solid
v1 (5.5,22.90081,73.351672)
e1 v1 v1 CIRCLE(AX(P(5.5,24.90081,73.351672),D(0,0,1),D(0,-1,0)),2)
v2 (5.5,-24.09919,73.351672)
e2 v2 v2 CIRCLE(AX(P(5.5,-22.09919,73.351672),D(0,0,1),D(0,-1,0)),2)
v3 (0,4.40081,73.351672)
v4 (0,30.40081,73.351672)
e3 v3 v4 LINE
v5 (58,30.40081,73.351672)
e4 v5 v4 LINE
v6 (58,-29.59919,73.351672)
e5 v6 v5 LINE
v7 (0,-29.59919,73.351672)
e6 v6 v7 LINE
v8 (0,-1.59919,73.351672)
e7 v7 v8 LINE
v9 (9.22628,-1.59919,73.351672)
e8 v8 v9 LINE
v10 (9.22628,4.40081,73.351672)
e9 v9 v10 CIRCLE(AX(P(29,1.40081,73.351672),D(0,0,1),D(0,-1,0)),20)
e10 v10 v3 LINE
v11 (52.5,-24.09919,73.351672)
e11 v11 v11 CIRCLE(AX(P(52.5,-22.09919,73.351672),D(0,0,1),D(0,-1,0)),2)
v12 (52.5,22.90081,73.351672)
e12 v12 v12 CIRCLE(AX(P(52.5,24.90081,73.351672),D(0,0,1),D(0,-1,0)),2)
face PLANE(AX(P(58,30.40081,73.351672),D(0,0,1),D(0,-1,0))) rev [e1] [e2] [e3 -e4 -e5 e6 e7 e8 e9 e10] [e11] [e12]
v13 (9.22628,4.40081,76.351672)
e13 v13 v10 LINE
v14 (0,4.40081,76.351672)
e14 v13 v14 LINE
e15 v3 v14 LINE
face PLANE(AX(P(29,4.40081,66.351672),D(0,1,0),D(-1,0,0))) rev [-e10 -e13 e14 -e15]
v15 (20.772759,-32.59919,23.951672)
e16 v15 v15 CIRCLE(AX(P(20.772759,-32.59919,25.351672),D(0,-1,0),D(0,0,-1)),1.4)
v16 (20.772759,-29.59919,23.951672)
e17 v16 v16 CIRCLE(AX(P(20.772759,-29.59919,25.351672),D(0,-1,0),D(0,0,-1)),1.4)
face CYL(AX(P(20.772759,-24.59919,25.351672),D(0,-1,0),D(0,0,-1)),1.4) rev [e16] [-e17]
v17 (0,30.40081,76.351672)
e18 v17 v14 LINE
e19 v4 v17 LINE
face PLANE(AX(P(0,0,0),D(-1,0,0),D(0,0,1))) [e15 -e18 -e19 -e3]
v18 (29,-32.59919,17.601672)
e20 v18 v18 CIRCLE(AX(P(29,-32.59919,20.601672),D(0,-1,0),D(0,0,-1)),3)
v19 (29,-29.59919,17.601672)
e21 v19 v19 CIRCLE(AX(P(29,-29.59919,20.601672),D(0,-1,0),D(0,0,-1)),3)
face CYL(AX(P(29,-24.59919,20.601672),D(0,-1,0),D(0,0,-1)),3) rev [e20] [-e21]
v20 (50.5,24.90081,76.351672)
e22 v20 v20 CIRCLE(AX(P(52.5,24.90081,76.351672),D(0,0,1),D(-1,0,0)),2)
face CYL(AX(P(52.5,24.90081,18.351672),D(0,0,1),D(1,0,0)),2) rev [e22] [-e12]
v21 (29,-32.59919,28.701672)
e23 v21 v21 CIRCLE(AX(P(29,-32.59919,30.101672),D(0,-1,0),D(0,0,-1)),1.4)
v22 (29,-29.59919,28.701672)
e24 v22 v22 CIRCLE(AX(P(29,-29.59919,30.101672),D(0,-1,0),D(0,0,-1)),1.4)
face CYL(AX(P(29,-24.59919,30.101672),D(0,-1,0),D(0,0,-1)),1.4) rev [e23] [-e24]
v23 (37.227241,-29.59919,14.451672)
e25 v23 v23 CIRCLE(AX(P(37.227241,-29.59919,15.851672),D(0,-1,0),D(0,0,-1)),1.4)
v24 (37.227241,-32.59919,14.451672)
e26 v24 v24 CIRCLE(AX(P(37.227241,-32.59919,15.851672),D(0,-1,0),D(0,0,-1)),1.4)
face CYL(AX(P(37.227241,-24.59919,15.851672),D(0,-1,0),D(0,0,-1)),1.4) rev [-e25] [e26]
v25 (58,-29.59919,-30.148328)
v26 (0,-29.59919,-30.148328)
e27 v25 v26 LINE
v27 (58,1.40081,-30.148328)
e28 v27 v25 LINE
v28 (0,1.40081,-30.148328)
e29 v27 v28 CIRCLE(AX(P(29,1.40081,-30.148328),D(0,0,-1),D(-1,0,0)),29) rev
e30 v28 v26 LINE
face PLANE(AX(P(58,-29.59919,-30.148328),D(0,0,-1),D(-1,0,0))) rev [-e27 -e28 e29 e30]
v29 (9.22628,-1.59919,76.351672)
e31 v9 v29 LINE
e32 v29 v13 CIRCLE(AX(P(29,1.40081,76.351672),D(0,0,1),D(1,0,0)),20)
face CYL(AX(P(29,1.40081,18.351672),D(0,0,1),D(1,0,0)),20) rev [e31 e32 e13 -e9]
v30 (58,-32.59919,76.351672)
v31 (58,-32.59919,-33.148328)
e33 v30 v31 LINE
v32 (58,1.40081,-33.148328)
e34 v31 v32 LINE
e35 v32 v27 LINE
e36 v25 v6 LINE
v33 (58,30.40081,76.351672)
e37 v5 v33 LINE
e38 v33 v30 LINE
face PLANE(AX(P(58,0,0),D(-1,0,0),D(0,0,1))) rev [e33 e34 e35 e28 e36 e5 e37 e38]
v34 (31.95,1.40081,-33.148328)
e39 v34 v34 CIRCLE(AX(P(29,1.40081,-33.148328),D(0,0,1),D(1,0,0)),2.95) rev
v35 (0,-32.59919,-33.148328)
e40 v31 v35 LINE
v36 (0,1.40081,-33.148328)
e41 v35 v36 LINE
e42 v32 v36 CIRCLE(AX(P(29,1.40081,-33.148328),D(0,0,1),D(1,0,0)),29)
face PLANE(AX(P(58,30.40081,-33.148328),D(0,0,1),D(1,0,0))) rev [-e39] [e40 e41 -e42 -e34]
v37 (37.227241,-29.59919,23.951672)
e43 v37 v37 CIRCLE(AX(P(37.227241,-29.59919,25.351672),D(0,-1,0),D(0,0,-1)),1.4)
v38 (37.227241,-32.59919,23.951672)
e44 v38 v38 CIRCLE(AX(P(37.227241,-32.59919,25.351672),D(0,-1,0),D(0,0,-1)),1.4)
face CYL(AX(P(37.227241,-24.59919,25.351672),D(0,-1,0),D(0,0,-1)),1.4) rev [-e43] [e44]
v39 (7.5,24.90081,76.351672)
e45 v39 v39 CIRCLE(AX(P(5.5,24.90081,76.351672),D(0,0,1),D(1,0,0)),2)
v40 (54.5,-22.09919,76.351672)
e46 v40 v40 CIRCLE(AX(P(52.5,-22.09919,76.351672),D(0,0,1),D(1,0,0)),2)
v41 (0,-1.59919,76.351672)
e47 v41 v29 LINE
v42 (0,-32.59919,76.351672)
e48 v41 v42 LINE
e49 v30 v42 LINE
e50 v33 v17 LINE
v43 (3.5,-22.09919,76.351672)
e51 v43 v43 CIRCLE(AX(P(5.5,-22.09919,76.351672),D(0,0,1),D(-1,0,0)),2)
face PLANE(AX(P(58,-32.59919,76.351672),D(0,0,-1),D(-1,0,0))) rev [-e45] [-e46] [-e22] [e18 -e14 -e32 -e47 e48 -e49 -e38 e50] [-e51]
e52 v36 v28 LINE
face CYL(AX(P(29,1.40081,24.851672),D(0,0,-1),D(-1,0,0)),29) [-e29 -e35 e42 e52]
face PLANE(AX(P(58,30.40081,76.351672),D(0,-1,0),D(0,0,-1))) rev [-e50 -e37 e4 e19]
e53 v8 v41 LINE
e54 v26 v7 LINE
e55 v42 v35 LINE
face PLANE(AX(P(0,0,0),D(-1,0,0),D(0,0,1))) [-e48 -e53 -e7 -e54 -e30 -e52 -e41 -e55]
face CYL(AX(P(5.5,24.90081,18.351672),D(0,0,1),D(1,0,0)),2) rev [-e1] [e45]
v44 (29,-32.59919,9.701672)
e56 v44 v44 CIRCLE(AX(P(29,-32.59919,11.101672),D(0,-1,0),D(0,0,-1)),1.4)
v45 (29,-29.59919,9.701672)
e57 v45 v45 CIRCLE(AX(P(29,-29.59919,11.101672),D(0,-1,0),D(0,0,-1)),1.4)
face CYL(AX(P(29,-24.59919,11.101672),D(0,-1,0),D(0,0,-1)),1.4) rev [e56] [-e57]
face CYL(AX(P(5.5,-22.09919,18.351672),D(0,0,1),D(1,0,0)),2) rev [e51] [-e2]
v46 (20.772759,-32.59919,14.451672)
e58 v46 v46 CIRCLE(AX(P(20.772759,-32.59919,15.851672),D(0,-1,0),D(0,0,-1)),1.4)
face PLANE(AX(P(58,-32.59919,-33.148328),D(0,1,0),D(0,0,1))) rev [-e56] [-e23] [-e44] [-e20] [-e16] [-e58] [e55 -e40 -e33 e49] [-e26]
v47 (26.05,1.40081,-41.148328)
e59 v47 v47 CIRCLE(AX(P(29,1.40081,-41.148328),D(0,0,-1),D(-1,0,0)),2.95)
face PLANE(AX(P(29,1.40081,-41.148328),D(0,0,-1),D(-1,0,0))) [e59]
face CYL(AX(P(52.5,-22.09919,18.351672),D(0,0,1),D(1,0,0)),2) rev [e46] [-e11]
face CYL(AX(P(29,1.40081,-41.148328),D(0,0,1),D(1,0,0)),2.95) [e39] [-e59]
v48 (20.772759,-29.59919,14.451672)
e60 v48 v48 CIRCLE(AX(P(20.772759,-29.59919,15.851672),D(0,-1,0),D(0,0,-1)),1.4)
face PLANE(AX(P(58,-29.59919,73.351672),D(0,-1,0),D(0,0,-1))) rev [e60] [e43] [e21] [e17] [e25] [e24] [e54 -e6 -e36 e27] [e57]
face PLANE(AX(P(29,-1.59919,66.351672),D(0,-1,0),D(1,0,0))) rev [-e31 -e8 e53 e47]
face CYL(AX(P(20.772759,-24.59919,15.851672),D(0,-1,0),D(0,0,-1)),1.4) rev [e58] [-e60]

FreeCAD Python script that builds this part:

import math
import FreeCAD as App
import Part
import Sketcher
from FreeCAD import Vector


def add_polygon(sketch, points):
    """Adds a closed chain of lines whose ends are joined by coincident constraints."""
    first, n = sketch.GeometryCount, len(points)
    for a, b in zip(points, points[1:] + points[:1]):
        sketch.addGeometry(Part.LineSegment(App.Vector(*a, 0), App.Vector(*b, 0)), False)
    for i in range(n):
        sketch.addConstraint(Sketcher.Constraint("Coincident", first + i, 2, first + (i + 1) % n, 1))

doc = App.newDocument("Part")
body = doc.addObject("PartDesign::Body", "Body")

sketch1 = doc.addObject("Sketcher::SketchObject", "Sketch")
body.addObject(sketch1)
sketch1.AttachmentSupport = (doc.YZ_Plane, [""])
sketch1.MapMode = "FlatFace"
add_polygon(sketch1, [(-29.59919, 73.351672), (30.40081, 73.351672), (30.40081, 76.351672), (-32.59919, 76.351672), (-32.59919, -33.148328), (30.40081, -33.148328), (30.40081, -30.148328), (-29.59919, -30.148328)])
sketch1.addConstraint([
    Sketcher.Constraint("Horizontal", 0),
    Sketcher.Constraint("Vertical", 1),
    Sketcher.Constraint("Horizontal", 2),
    Sketcher.Constraint("Vertical", 3),
    Sketcher.Constraint("Horizontal", 4),
    Sketcher.Constraint("Vertical", 5),
    Sketcher.Constraint("Horizontal", 6),
    Sketcher.Constraint("Vertical", 7),
    Sketcher.Constraint("Vertical", 1, 2, 4, 2),
    Sketcher.Constraint("Equal", 1, 5),
    Sketcher.Constraint("DistanceX", 0, 1, 0, 2, 60.0),
    Sketcher.Constraint("DistanceX", 2, 2, 2, 1, 63.0),
    Sketcher.Constraint("DistanceY", 1, 1, 1, 2, 3.0),
    Sketcher.Constraint("DistanceY", 3, 2, 3, 1, 109.5),
    Sketcher.Constraint("DistanceX", -1, 1, 0, 2, 30.40081),
    Sketcher.Constraint("DistanceY", -1, 1, 0, 2, 73.351672),
])
pad1 = doc.addObject("PartDesign::Pad", "Pad")
body.addObject(pad1)
pad1.Profile = sketch1
pad1.Length = 58

sketch2 = doc.addObject("Sketcher::SketchObject", "Sketch001")
body.addObject(sketch2)
sketch2.AttachmentSupport = (doc.XY_Plane, [""])
sketch2.MapMode = "FlatFace"
sketch2.AttachmentOffset = App.Placement(Vector(0, 0, 76.351672), App.Rotation())
sketch2.addGeometry([
    Part.Circle(Vector(5.5, 24.90081, 0), Vector(0, 0, 1), 2),
    Part.Circle(Vector(52.5, 24.90081, 0), Vector(0, 0, 1), 2),
    Part.Circle(Vector(52.5, -22.09919, 0), Vector(0, 0, 1), 2),
    Part.Circle(Vector(5.5, -22.09919, 0), Vector(0, 0, 1), 2),
    Part.Circle(Vector(29, 1.40081, 0), Vector(0, 0, 1), 20),
], False)
sketch2.addConstraint([
    Sketcher.Constraint("Equal", 0, 1),
    Sketcher.Constraint("Equal", 1, 2),
    Sketcher.Constraint("Equal", 2, 3),
    Sketcher.Constraint("Horizontal", 0, 3, 1, 3),
    Sketcher.Constraint("Horizontal", 2, 3, 3, 3),
    Sketcher.Constraint("Vertical", 1, 3, 2, 3),
    Sketcher.Constraint("Vertical", 0, 3, 3, 3),
    Sketcher.Constraint("Diameter", 0, 4.0),
    Sketcher.Constraint("Diameter", 4, 40.0),
    Sketcher.Constraint("DistanceX", -1, 1, 4, 3, 29.0),
    Sketcher.Constraint("DistanceX", 0, 3, 1, 3, 47.0),
    Sketcher.Constraint("DistanceY", 2, 3, 1, 3, 47.0),
    Sketcher.Constraint("DistanceX", -1, 1, 0, 3, 5.5),
    Sketcher.Constraint("DistanceY", 4, 3, 0, 3, 23.5),
    Sketcher.Constraint("DistanceY", -1, 1, 0, 3, 24.90081),
])
pocket1 = doc.addObject("PartDesign::Pocket", "Pocket")
body.addObject(pocket1)
pocket1.Profile = sketch2
pocket1.Length = 58

sketch3 = doc.addObject("Sketcher::SketchObject", "Sketch002")
body.addObject(sketch3)
sketch3.AttachmentSupport = (doc.XY_Plane, [""])
sketch3.MapMode = "FlatFace"
sketch3.AttachmentOffset = App.Placement(Vector(0, 0, -33.148328), App.Rotation())
sketch3.addGeometry([
    Part.LineSegment(Vector(29, 30.40081, 0), Vector(58, 30.40081, 0)),
    Part.LineSegment(Vector(58, 30.40081, 0), Vector(58, 1.40081, 0)),
    Part.ArcOfCircle(Part.Circle(Vector(29, 1.40081, 0), Vector(0, 0, 1), 29), math.radians(0), math.radians(90)),
], False)
sketch3.addConstraint([
    Sketcher.Constraint("Coincident", 0, 2, 1, 1),
    Sketcher.Constraint("Tangent", 1, 2, 2, 1),
    Sketcher.Constraint("Tangent", 2, 2, 0, 1),
    Sketcher.Constraint("Horizontal", 0),
    Sketcher.Constraint("Vertical", 1),
    Sketcher.Constraint("Radius", 2, 29.0),
    Sketcher.Constraint("DistanceX", -1, 1, 2, 3, 29.0),
    Sketcher.Constraint("DistanceY", -1, 1, 2, 3, 1.40081),
])
pocket2 = doc.addObject("PartDesign::Pocket", "Pocket001")
body.addObject(pocket2)
pocket2.Profile = sketch3
pocket2.Length = 58
pocket2.Reversed = True

sketch4 = doc.addObject("Sketcher::SketchObject", "Sketch003")
body.addObject(sketch4)
sketch4.AttachmentSupport = (doc.XY_Plane, [""])
sketch4.MapMode = "FlatFace"
sketch4.AttachmentOffset = App.Placement(Vector(0, 0, -33.148328), App.Rotation())
sketch4.addGeometry([
    Part.LineSegment(Vector(0, 30.40081, 0), Vector(29, 30.40081, 0)),
    Part.ArcOfCircle(Part.Circle(Vector(29, 1.40081, 0), Vector(0, 0, 1), 29), math.radians(90), math.radians(180)),
    Part.LineSegment(Vector(0, 1.40081, 0), Vector(0, 30.40081, 0)),
], False)
sketch4.addConstraint([
    Sketcher.Constraint("Tangent", 0, 2, 1, 1),
    Sketcher.Constraint("Tangent", 1, 2, 2, 1),
    Sketcher.Constraint("Coincident", 2, 2, 0, 1),
    Sketcher.Constraint("Horizontal", 0),
    Sketcher.Constraint("Vertical", 2),
    Sketcher.Constraint("PointOnObject", 1, 2, -2),
    Sketcher.Constraint("Radius", 1, 29.0),
    Sketcher.Constraint("DistanceY", -1, 1, 1, 3, 1.40081),
])
pocket3 = doc.addObject("PartDesign::Pocket", "Pocket002")
body.addObject(pocket3)
pocket3.Profile = sketch4
pocket3.Length = 58
pocket3.Reversed = True

sketch5 = doc.addObject("Sketcher::SketchObject", "Sketch004")
body.addObject(sketch5)
sketch5.AttachmentSupport = (doc.XY_Plane, [""])
sketch5.MapMode = "FlatFace"
sketch5.AttachmentOffset = App.Placement(Vector(0, 0, -33.148328), App.Rotation())
sketch5.addGeometry(Part.Circle(Vector(29, 1.40081, 0), Vector(0, 0, 1), 2.95), False)
sketch5.addConstraint([
    Sketcher.Constraint("Diameter", 0, 5.9),
    Sketcher.Constraint("DistanceX", -1, 1, 0, 3, 29.0),
    Sketcher.Constraint("DistanceY", -1, 1, 0, 3, 1.40081),
])
pad2 = doc.addObject("PartDesign::Pad", "Pad001")
body.addObject(pad2)
pad2.Profile = sketch5
pad2.Length = 8
pad2.Reversed = True

sketch6 = doc.addObject("Sketcher::SketchObject", "Sketch005")
body.addObject(sketch6)
sketch6.AttachmentSupport = (doc.XZ_Plane, [""])
sketch6.MapMode = "FlatFace"
sketch6.AttachmentOffset = App.Placement(Vector(0, 0, 32.59919), App.Rotation())
sketch6.addGeometry([
    Part.Circle(Vector(29, 20.601672, 0), Vector(0, 0, 1), 3),
    Part.Circle(Vector(29, 30.101672, 0), Vector(0, 0, 1), 1.4),
    Part.Circle(Vector(37.227241, 25.351672, 0), Vector(0, 0, 1), 1.4),
    Part.Circle(Vector(37.227241, 15.851672, 0), Vector(0, 0, 1), 1.4),
    Part.Circle(Vector(29, 11.101672, 0), Vector(0, 0, 1), 1.4),
    Part.Circle(Vector(20.772759, 15.851672, 0), Vector(0, 0, 1), 1.4),
    Part.Circle(Vector(20.772759, 25.351672, 0), Vector(0, 0, 1), 1.4),
], False)
sketch6.addConstraint([
    Sketcher.Constraint("Equal", 1, 2),
    Sketcher.Constraint("Equal", 2, 3),
    Sketcher.Constraint("Equal", 3, 4),
    Sketcher.Constraint("Equal", 4, 5),
    Sketcher.Constraint("Equal", 5, 6),
    Sketcher.Constraint("Horizontal", 3, 3, 5, 3),
    Sketcher.Constraint("Horizontal", 2, 3, 6, 3),
    Sketcher.Constraint("Vertical", 0, 3, 1, 3),
    Sketcher.Constraint("Vertical", 2, 3, 3, 3),
    Sketcher.Constraint("Vertical", 1, 3, 4, 3),
    Sketcher.Constraint("Vertical", 5, 3, 6, 3),
    Sketcher.Constraint("Diameter", 0, 6.0),
    Sketcher.Constraint("Diameter", 1, 2.8),
    Sketcher.Constraint("DistanceX", -1, 1, 0, 3, 29.0),
    Sketcher.Constraint("DistanceY", 4, 3, 1, 3, 19.0),
    Sketcher.Constraint("DistanceY", 0, 3, 1, 3, 9.5),
    Sketcher.Constraint("DistanceY", 3, 3, 2, 3, 9.5),
    Sketcher.Constraint("DistanceY", 0, 3, 2, 3, 4.75),
    Sketcher.Constraint("DistanceY", -1, 1, 0, 3, 20.601672),
    Sketcher.Constraint("DistanceX", -1, 1, 2, 3, 37.227241),
    Sketcher.Constraint("DistanceX", -1, 1, 5, 3, 20.772759),
])
pocket4 = doc.addObject("PartDesign::Pocket", "Pocket003")
body.addObject(pocket4)
pocket4.Profile = sketch6
pocket4.Length = 8

sketch7 = doc.addObject("Sketcher::SketchObject", "Sketch006")
body.addObject(sketch7)
sketch7.AttachmentSupport = (doc.XY_Plane, [""])
sketch7.MapMode = "FlatFace"
sketch7.AttachmentOffset = App.Placement(Vector(0, 0, 76.351672), App.Rotation())
add_polygon(sketch7, [(0, 4.40081), (0, -1.59919), (29, -1.59919), (29, 4.40081)])
sketch7.addConstraint([
    Sketcher.Constraint("Vertical", 0),
    Sketcher.Constraint("Horizontal", 1),
    Sketcher.Constraint("Vertical", 2),
    Sketcher.Constraint("Horizontal", 3),
    Sketcher.Constraint("PointOnObject", 0, 2, -2),
    Sketcher.Constraint("DistanceX", 1, 1, 1, 2, 29.0),
    Sketcher.Constraint("DistanceY", 0, 2, 0, 1, 6.0),
    Sketcher.Constraint("DistanceY", 0, 2, -1, 1, 1.59919),
])
pocket5 = doc.addObject("PartDesign::Pocket", "Pocket004")
body.addObject(pocket5)
pocket5.Profile = sketch7
pocket5.Length = 10

doc.recompute()
